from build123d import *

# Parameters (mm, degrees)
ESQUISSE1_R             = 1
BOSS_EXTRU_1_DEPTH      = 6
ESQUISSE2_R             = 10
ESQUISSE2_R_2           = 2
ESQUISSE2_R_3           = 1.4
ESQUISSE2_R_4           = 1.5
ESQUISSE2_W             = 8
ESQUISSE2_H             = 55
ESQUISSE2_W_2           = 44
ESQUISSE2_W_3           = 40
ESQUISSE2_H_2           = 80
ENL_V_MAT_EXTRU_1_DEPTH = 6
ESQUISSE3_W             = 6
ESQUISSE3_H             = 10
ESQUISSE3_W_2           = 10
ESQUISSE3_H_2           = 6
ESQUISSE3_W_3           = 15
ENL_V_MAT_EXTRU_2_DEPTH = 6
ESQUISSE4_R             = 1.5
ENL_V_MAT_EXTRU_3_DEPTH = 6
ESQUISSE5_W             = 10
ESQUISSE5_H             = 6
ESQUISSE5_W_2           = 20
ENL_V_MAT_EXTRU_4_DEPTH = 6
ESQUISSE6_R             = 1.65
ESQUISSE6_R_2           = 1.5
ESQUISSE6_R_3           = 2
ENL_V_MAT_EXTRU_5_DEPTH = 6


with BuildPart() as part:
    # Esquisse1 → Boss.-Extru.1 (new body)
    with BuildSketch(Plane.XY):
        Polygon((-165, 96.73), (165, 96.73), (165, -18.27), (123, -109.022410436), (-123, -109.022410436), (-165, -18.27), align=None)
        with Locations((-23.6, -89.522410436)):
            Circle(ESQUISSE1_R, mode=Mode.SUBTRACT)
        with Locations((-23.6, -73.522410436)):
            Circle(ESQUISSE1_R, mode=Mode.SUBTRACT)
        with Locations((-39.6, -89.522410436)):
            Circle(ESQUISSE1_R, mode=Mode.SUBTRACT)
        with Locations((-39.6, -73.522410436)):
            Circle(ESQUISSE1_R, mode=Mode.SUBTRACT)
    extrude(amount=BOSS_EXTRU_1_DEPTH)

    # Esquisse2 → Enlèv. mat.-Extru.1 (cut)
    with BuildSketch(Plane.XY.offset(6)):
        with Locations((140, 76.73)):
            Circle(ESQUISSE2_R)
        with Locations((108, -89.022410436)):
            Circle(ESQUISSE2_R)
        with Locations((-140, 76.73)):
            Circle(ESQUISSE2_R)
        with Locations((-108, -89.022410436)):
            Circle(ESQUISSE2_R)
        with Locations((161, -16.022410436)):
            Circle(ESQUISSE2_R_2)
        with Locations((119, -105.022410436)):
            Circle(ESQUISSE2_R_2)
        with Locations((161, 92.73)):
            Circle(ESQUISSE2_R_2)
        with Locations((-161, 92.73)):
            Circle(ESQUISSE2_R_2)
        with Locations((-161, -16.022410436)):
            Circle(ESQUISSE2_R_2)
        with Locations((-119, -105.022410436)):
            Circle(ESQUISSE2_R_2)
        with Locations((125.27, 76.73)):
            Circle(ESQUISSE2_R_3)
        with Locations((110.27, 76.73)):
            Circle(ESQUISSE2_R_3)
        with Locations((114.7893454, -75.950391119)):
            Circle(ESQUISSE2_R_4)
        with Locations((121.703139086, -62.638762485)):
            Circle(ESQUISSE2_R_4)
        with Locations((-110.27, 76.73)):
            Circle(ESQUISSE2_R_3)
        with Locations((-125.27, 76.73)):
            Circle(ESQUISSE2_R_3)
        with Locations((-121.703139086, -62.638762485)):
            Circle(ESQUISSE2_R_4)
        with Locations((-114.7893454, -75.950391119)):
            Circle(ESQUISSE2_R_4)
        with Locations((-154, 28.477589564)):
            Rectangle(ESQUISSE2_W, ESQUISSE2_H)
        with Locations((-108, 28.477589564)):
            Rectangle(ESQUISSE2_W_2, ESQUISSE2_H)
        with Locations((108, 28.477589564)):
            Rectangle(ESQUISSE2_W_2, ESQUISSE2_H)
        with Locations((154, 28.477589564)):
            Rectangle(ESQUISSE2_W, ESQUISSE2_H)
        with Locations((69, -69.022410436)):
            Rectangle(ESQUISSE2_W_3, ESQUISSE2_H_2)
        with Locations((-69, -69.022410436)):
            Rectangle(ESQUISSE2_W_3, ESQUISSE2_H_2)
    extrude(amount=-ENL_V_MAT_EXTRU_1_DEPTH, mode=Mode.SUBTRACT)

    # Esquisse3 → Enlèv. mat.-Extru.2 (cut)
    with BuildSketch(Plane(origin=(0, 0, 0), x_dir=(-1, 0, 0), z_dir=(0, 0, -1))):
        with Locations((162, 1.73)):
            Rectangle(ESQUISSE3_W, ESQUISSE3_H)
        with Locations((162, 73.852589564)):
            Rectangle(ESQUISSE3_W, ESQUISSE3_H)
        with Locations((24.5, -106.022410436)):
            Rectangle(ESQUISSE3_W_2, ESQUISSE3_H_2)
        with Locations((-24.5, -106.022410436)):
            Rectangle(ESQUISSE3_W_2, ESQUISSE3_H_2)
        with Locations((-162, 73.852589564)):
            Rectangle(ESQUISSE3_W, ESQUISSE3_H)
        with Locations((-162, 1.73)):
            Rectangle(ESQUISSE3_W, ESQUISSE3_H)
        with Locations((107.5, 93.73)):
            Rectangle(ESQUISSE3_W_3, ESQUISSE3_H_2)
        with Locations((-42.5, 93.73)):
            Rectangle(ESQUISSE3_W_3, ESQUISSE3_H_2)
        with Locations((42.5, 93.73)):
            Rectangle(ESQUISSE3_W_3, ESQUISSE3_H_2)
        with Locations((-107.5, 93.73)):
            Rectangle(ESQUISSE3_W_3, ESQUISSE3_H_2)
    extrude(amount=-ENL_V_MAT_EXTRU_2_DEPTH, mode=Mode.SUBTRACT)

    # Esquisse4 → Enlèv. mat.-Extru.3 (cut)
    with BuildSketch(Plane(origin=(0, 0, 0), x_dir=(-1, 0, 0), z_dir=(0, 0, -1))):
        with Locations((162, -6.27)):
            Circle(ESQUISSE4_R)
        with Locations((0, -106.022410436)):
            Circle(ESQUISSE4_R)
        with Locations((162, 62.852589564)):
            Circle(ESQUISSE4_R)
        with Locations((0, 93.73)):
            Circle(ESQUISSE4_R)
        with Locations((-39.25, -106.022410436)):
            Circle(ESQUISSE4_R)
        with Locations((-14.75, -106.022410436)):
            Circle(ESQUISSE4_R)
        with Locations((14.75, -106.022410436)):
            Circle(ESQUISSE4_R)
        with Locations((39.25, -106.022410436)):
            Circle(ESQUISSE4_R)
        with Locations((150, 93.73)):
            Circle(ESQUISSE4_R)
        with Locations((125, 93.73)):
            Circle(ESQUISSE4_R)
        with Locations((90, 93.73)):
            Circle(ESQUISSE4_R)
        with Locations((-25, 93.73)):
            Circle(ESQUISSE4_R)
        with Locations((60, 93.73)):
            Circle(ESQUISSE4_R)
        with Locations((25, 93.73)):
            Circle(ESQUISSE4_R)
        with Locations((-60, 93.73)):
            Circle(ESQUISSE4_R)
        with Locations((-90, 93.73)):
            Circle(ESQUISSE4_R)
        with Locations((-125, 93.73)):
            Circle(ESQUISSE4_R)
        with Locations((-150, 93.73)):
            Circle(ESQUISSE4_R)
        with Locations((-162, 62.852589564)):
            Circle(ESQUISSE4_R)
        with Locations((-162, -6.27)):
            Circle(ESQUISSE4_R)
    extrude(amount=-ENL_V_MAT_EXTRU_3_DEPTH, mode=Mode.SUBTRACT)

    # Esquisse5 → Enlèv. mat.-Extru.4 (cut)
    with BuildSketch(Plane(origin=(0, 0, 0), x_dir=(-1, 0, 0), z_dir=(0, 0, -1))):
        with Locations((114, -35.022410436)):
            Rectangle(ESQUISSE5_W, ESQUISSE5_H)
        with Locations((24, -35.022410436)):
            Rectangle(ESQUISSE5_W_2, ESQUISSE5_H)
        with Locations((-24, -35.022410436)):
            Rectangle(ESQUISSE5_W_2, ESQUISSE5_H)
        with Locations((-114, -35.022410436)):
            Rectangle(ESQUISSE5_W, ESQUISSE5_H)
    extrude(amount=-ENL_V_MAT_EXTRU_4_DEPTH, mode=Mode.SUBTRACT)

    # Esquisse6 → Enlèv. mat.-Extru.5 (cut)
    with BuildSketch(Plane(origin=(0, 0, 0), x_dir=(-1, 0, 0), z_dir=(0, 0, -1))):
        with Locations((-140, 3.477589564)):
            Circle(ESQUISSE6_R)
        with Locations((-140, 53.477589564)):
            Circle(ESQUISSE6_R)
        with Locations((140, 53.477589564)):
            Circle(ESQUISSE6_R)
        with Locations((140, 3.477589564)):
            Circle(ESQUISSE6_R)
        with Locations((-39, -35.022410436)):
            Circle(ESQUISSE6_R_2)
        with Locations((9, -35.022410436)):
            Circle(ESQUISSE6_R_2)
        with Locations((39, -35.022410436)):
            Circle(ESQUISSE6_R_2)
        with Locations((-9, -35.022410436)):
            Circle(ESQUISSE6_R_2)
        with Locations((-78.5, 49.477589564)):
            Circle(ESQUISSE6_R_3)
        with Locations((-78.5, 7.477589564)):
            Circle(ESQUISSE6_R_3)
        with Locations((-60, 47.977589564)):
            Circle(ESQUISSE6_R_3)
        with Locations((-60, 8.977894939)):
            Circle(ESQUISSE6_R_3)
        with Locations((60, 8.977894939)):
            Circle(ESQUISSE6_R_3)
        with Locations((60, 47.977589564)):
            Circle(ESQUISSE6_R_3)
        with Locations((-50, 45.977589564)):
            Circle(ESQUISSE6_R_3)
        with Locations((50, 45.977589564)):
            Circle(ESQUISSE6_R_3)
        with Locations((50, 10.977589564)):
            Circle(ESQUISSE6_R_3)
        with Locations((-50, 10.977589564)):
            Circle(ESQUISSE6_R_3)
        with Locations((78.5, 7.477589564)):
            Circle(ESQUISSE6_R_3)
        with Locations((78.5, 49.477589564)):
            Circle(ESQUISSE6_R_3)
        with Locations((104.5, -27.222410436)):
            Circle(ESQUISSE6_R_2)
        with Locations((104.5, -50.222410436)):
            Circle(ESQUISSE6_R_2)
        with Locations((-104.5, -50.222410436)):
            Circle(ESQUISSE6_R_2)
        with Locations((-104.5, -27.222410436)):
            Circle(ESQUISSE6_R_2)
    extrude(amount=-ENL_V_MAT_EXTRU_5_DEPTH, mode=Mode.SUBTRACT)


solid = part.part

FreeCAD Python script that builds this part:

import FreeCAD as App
import Part
import Sketcher
Q = App.Units.Quantity

doc = App.newDocument("Part")
body = doc.addObject("PartDesign::Body", "Body")

# Sketch on XY plane
sketch1 = doc.addObject("Sketcher::SketchObject", "Sketch")
body.addObject(sketch1)
sketch1.AttachmentSupport = (doc.XY_Plane, [""])
sketch1.MapMode = "FlatFace"
sketch1.addGeometry(Part.LineSegment(App.Vector(165, 96.73, 0), App.Vector(-165, 96.73, 0)), False)
sketch1.addGeometry(Part.LineSegment(App.Vector(-165, 96.73, 0), App.Vector(-165, -18.27, 0)), False)
sketch1.addGeometry(Part.LineSegment(App.Vector(-165, -18.27, 0), App.Vector(-123, -109.02241, 0)), False)
sketch1.addGeometry(Part.LineSegment(App.Vector(-123, -109.02241, 0), App.Vector(123, -109.02241, 0)), False)
sketch1.addGeometry(Part.LineSegment(App.Vector(123, -109.02241, 0), App.Vector(165, -18.27, 0)), False)
sketch1.addGeometry(Part.LineSegment(App.Vector(165, -18.27, 0), App.Vector(165, 96.73, 0)), False)
sketch1.addGeometry(Part.Circle(App.Vector(-23.6, -89.52241, 0), App.Vector(0, 0, 1), 1), False)
sketch1.addGeometry(Part.Circle(App.Vector(-39.6, -89.52241, 0), App.Vector(0, 0, 1), 1), False)
sketch1.addGeometry(Part.Circle(App.Vector(-23.6, -73.52241, 0), App.Vector(0, 0, 1), 1), False)
sketch1.addGeometry(Part.Circle(App.Vector(-39.6, -73.52241, 0), App.Vector(0, 0, 1), 1), False)
sketch1.addConstraint(Sketcher.Constraint("Coincident", 0, 2, 1, 1))
sketch1.addConstraint(Sketcher.Constraint("Coincident", 1, 2, 2, 1))
sketch1.addConstraint(Sketcher.Constraint("Coincident", 2, 2, 3, 1))
sketch1.addConstraint(Sketcher.Constraint("Coincident", 3, 2, 4, 1))
sketch1.addConstraint(Sketcher.Constraint("Coincident", 4, 2, 5, 1))
sketch1.addConstraint(Sketcher.Constraint("Coincident", 5, 2, 0, 1))
sketch1.addConstraint(Sketcher.Constraint("Horizontal", 0))
sketch1.addConstraint(Sketcher.Constraint("Vertical", 1))
sketch1.addConstraint(Sketcher.Constraint("Horizontal", 3))
sketch1.addConstraint(Sketcher.Constraint("Vertical", 5))
sketch1.addConstraint(Sketcher.Constraint("Equal", 6, 7))
sketch1.addConstraint(Sketcher.Constraint("Equal", 7, 8))
sketch1.addConstraint(Sketcher.Constraint("Equal", 8, 9))
sketch1.addConstraint(Sketcher.Constraint("Symmetric", 1, 2, 4, 2, -2))
sketch1.addConstraint(Sketcher.Constraint("Horizontal", 6, 3, 7, 3))
sketch1.addConstraint(Sketcher.Constraint("Horizontal", 8, 3, 9, 3))
sketch1.addConstraint(Sketcher.Constraint("Vertical", 6, 3, 8, 3))
sketch1.addConstraint(Sketcher.Constraint("Vertical", 7, 3, 9, 3))
sketch1.addConstraint(Sketcher.Constraint("Equal", 2, 4))
sketch1.addConstraint(Sketcher.Constraint("Diameter", 6, Q("2 mm")))
sketch1.addConstraint(Sketcher.Constraint("DistanceX", 0, 2, 0, 1, Q("330 mm")))
sketch1.addConstraint(Sketcher.Constraint("DistanceX", 3, 1, 3, 2, Q("246 mm")))
sketch1.addConstraint(Sketcher.Constraint("DistanceY", 1, 2, 1, 1, Q("115 mm")))
sketch1.addConstraint(Sketcher.Constraint("Distance", 2, Q("100 mm")))
sketch1.addConstraint(Sketcher.Constraint("DistanceX", 7, 3, 6, 3, Q("16 mm")))
sketch1.addConstraint(Sketcher.Constraint("DistanceY", 6, 3, 8, 3, Q("16 mm")))
sketch1.addConstraint(Sketcher.Constraint("DistanceX", 6, 3, -1, 1, Q("23.6 mm")))
sketch1.addConstraint(Sketcher.Constraint("DistanceY", 2, 2, 7, 3, Q("19.5 mm")))
sketch1.addConstraint(Sketcher.Constraint("DistanceY", -1, 1, 0, 2, Q("96.73 mm")))
pad1 = doc.addObject("PartDesign::Pad", "Pad")
body.addObject(pad1)
pad1.Profile = sketch1
pad1.Length = 6

# Sketch on XY plane
sketch2 = doc.addObject("Sketcher::SketchObject", "Sketch001")
body.addObject(sketch2)
sketch2.AttachmentSupport = (doc.XY_Plane, [""])
sketch2.MapMode = "FlatFace"
sketch2.AttachmentOffset = App.Placement(App.Vector(0, 0, 6), App.Rotation())
sketch2.addGeometry(Part.Circle(App.Vector(140, 76.73, 0), App.Vector(0, 0, 1), 10), False)
sketch2.addGeometry(Part.Circle(App.Vector(108, -89.02241, 0), App.Vector(0, 0, 1), 10), False)
sketch2.addGeometry(Part.Circle(App.Vector(-140, 76.73, 0), App.Vector(0, 0, 1), 10), False)
sketch2.addGeometry(Part.Circle(App.Vector(-108, -89.02241, 0), App.Vector(0, 0, 1), 10), False)
sketch2.addGeometry(Part.Circle(App.Vector(161, -16.02241, 0), App.Vector(0, 0, 1), 2), False)
sketch2.addGeometry(Part.Circle(App.Vector(119, -105.02241, 0), App.Vector(0, 0, 1), 2), False)
sketch2.addGeometry(Part.Circle(App.Vector(161, 92.73, 0), App.Vector(0, 0, 1), 2), False)
sketch2.addGeometry(Part.Circle(App.Vector(-161, 92.73, 0), App.Vector(0, 0, 1), 2), False)
sketch2.addGeometry(Part.Circle(App.Vector(-161, -16.02241, 0), App.Vector(0, 0, 1), 2), False)
sketch2.addGeometry(Part.Circle(App.Vector(-119, -105.02241, 0), App.Vector(0, 0, 1), 2), False)
sketch2.addGeometry(Part.Circle(App.Vector(125.27, 76.73, 0), App.Vector(0, 0, 1), 1.4), False)
sketch2.addGeometry(Part.Circle(App.Vector(110.27, 76.73, 0), App.Vector(0, 0, 1), 1.4), False)
sketch2.addGeometry(Part.Circle(App.Vector(114.789345, -75.950391, 0), App.Vector(0, 0, 1), 1.5), False)
sketch2.addGeometry(Part.Circle(App.Vector(121.703139, -62.638762, 0), App.Vector(0, 0, 1), 1.5), False)
sketch2.addGeometry(Part.Circle(App.Vector(-110.27, 76.73, 0), App.Vector(0, 0, 1), 1.4), False)
sketch2.addGeometry(Part.Circle(App.Vector(-125.27, 76.73, 0), App.Vector(0, 0, 1), 1.4), False)
sketch2.addGeometry(Part.Circle(App.Vector(-121.703139, -62.638762, 0), App.Vector(0, 0, 1), 1.5), False)
sketch2.addGeometry(Part.Circle(App.Vector(-114.789345, -75.950391, 0), App.Vector(0, 0, 1), 1.5), False)
sketch2.addGeometry(Part.LineSegment(App.Vector(-158, 55.97759, 0), App.Vector(-158, 0.97759, 0)), False)
sketch2.addGeometry(Part.LineSegment(App.Vector(-158, 0.97759, 0), App.Vector(-150, 0.97759, 0)), False)
sketch2.addGeometry(Part.LineSegment(App.Vector(-150, 0.97759, 0), App.Vector(-150, 55.97759, 0)), False)
sketch2.addGeometry(Part.LineSegment(App.Vector(-150, 55.97759, 0), App.Vector(-158, 55.97759, 0)), False)
sketch2.addGeometry(Part.LineSegment(App.Vector(-130, 55.97759, 0), App.Vector(-130, 0.97759, 0)), False)
sketch2.addGeometry(Part.LineSegment(App.Vector(-130, 0.97759, 0), App.Vector(-86, 0.97759, 0)), False)
sketch2.addGeometry(Part.LineSegment(App.Vector(-86, 0.97759, 0), App.Vector(-86, 55.97759, 0)), False)
sketch2.addGeometry(Part.LineSegment(App.Vector(-86, 55.97759, 0), App.Vector(-130, 55.97759, 0)), False)
sketch2.addGeometry(Part.LineSegment(App.Vector(86, 55.97759, 0), App.Vector(86, 0.97759, 0)), False)
sketch2.addGeometry(Part.LineSegment(App.Vector(86, 0.97759, 0), App.Vector(130, 0.97759, 0)), False)
sketch2.addGeometry(Part.LineSegment(App.Vector(130, 0.97759, 0), App.Vector(130, 55.97759, 0)), False)
sketch2.addGeometry(Part.LineSegment(App.Vector(130, 55.97759, 0), App.Vector(86, 55.97759, 0)), False)
sketch2.addGeometry(Part.LineSegment(App.Vector(150, 55.97759, 0), App.Vector(150, 0.97759, 0)), False)
sketch2.addGeometry(Part.LineSegment(App.Vector(150, 0.97759, 0), App.Vector(158, 0.97759, 0)), False)
sketch2.addGeometry(Part.LineSegment(App.Vector(158, 0.97759, 0), App.Vector(158, 55.97759, 0)), False)
sketch2.addGeometry(Part.LineSegment(App.Vector(158, 55.97759, 0), App.Vector(150, 55.97759, 0)), False)
sketch2.addGeometry(Part.LineSegment(App.Vector(49, -29.02241, 0), App.Vector(49, -109.02241, 0)), False)
sketch2.addGeometry(Part.LineSegment(App.Vector(49, -109.02241, 0), App.Vector(89, -109.02241, 0)), False)
sketch2.addGeometry(Part.LineSegment(App.Vector(89, -109.02241, 0), App.Vector(89, -29.02241, 0)), False)
sketch2.addGeometry(Part.LineSegment(App.Vector(89, -29.02241, 0), App.Vector(49, -29.02241, 0)), False)
sketch2.addGeometry(Part.LineSegment(App.Vector(-89, -29.02241, 0), App.Vector(-89, -109.02241, 0)), False)
sketch2.addGeometry(Part.LineSegment(App.Vector(-89, -109.02241, 0), App.Vector(-49, -109.02241, 0)), False)
sketch2.addGeometry(Part.LineSegment(App.Vector(-49, -109.02241, 0), App.Vector(-49, -29.02241, 0)), False)
sketch2.addGeometry(Part.LineSegment(App.Vector(-49, -29.02241, 0), App.Vector(-89, -29.02241, 0)), False)
sketch2.addConstraint(Sketcher.Constraint("Coincident", 18, 2, 19, 1))
sketch2.addConstraint(Sketcher.Constraint("Coincident", 19, 2, 20, 1))
sketch2.addConstraint(Sketcher.Constraint("Coincident", 20, 2, 21, 1))
sketch2.addConstraint(Sketcher.Constraint("Coincident", 21, 2, 18, 1))
sketch2.addConstraint(Sketcher.Constraint("Coincident", 22, 2, 23, 1))
sketch2.addConstraint(Sketcher.Constraint("Coincident", 23, 2, 24, 1))
sketch2.addConstraint(Sketcher.Constraint("Coincident", 24, 2, 25, 1))
sketch2.addConstraint(Sketcher.Constraint("Coincident", 25, 2, 22, 1))
sketch2.addConstraint(Sketcher.Constraint("Coincident", 26, 2, 27, 1))
sketch2.addConstraint(Sketcher.Constraint("Coincident", 27, 2, 28, 1))
sketch2.addConstraint(Sketcher.Constraint("Coincident", 28, 2, 29, 1))
sketch2.addConstraint(Sketcher.Constraint("Coincident", 29, 2, 26, 1))
sketch2.addConstraint(Sketcher.Constraint("Coincident", 30, 2, 31, 1))
sketch2.addConstraint(Sketcher.Constraint("Coincident", 31, 2, 32, 1))
sketch2.addConstraint(Sketcher.Constraint("Coincident", 32, 2, 33, 1))
sketch2.addConstraint(Sketcher.Constraint("Coincident", 33, 2, 30, 1))
sketch2.addConstraint(Sketcher.Constraint("Coincident", 34, 2, 35, 1))
sketch2.addConstraint(Sketcher.Constraint("Coincident", 35, 2, 36, 1))
sketch2.addConstraint(Sketcher.Constraint("Coincident", 36, 2, 37, 1))
sketch2.addConstraint(Sketcher.Constraint("Coincident", 37, 2, 34, 1))
sketch2.addConstraint(Sketcher.Constraint("Coincident", 38, 2, 39, 1))
sketch2.addConstraint(Sketcher.Constraint("Coincident", 39, 2, 40, 1))
sketch2.addConstraint(Sketcher.Constraint("Coincident", 40, 2, 41, 1))
sketch2.addConstraint(Sketcher.Constraint("Coincident", 41, 2, 38, 1))
sketch2.addConstraint(Sketcher.Constraint("Vertical", 18))
sketch2.addConstraint(Sketcher.Constraint("Horizontal", 19))
sketch2.addConstraint(Sketcher.Constraint("Vertical", 20))
sketch2.addConstraint(Sketcher.Constraint("Horizontal", 21))
sketch2.addConstraint(Sketcher.Constraint("Vertical", 22))
sketch2.addConstraint(Sketcher.Constraint("Horizontal", 23))
sketch2.addConstraint(Sketcher.Constraint("Vertical", 24))
sketch2.addConstraint(Sketcher.Constraint("Horizontal", 25))
sketch2.addConstraint(Sketcher.Constraint("Vertical", 26))
sketch2.addConstraint(Sketcher.Constraint("Horizontal", 27))
sketch2.addConstraint(Sketcher.Constraint("Vertical", 28))
sketch2.addConstraint(Sketcher.Constraint("Horizontal", 29))
sketch2.addConstraint(Sketcher.Constraint("Vertical", 30))
sketch2.addConstraint(Sketcher.Constraint("Horizontal", 31))
sketch2.addConstraint(Sketcher.Constraint("Vertical", 32))
sketch2.addConstraint(Sketcher.Constraint("Horizontal", 33))
sketch2.addConstraint(Sketcher.Constraint("Vertical", 34))
sketch2.addConstraint(Sketcher.Constraint("Horizontal", 35))
sketch2.addConstraint(Sketcher.Constraint("Vertical", 36))
sketch2.addConstraint(Sketcher.Constraint("Horizontal", 37))
sketch2.addConstraint(Sketcher.Constraint("Vertical", 38))
sketch2.addConstraint(Sketcher.Constraint("Horizontal", 39))
sketch2.addConstraint(Sketcher.Constraint("Vertical", 40))
sketch2.addConstraint(Sketcher.Constraint("Horizontal", 41))
sketch2.addConstraint(Sketcher.Constraint("Equal", 0, 1))
sketch2.addConstraint(Sketcher.Constraint("Equal", 1, 2))
sketch2.addConstraint(Sketcher.Constraint("Equal", 2, 3))
sketch2.addConstraint(Sketcher.Constraint("Equal", 4, 5))
sketch2.addConstraint(Sketcher.Constraint("Equal", 5, 6))
sketch2.addConstraint(Sketcher.Constraint("Equal", 6, 7))
sketch2.addConstraint(Sketcher.Constraint("Equal", 7, 8))
sketch2.addConstraint(Sketcher.Constraint("Equal", 8, 9))
sketch2.addConstraint(Sketcher.Constraint("Equal", 10, 11))
sketch2.addConstraint(Sketcher.Constraint("Equal", 12, 13))
sketch2.addConstraint(Sketcher.Constraint("Equal", 11, 14))
sketch2.addConstraint(Sketcher.Constraint("Equal", 14, 15))
sketch2.addConstraint(Sketcher.Constraint("Equal", 13, 16))
sketch2.addConstraint(Sketcher.Constraint("Equal", 16, 17))
sketch2.addConstraint(Sketcher.Constraint("Symmetric", 0, 3, 2, 3, -2))
sketch2.addConstraint(Sketcher.Constraint("Symmetric", 1, 3, 3, 3, -2))
sketch2.addConstraint(Sketcher.Constraint("Symmetric", 6, 3, 7, 3, -2))
sketch2.addConstraint(Sketcher.Constraint("Symmetric", 4, 3, 8, 3, -2))
sketch2.addConstraint(Sketcher.Constraint("Symmetric", 5, 3, 9, 3, -2))
sketch2.addConstraint(Sketcher.Constraint("Symmetric", 11, 3, 14, 3, -2))
sketch2.addConstraint(Sketcher.Constraint("Symmetric", 10, 3, 15, 3, -2))
sketch2.addConstraint(Sketcher.Constraint("Symmetric", 13, 3, 16, 3, -2))
sketch2.addConstraint(Sketcher.Constraint("Symmetric", 12, 3, 17, 3, -2))
sketch2.addConstraint(Sketcher.Constraint("Symmetric", 23, 2, 26, 2, -2))
sketch2.addConstraint(Sketcher.Constraint("Symmetric", 25, 2, 28, 2, -2))
sketch2.addConstraint(Sketcher.Constraint("Symmetric", 19, 2, 30, 2, -2))
sketch2.addConstraint(Sketcher.Constraint("Symmetric", 21, 2, 32, 2, -2))
sketch2.addConstraint(Sketcher.Constraint("Symmetric", 35, 2, 38, 2, -2))
sketch2.addConstraint(Sketcher.Constraint("Symmetric", 37, 2, 40, 2, -2))
sketch2.addConstraint(Sketcher.Constraint("Horizontal", 2, 3, 10, 3))
sketch2.addConstraint(Sketcher.Constraint("Horizontal", 10, 3, 11, 3))
sketch2.addConstraint(Sketcher.Constraint("Horizontal", 19, 2, 22, 2))
sketch2.addConstraint(Sketcher.Constraint("Horizontal", 21, 2, 24, 2))
sketch2.addConstraint(Sketcher.Constraint("Vertical", 4, 3, 6, 3))
sketch2.addConstraint(Sketcher.Constraint("Diameter", 0, Q("20 mm")))
sketch2.addConstraint(Sketcher.Constraint("Diameter", 4, Q("4 mm")))
sketch2.addConstraint(Sketcher.Constraint("Diameter", 12, Q("3 mm")))
sketch2.addConstraint(Sketcher.Constraint("Diameter", 10, Q("2.8 mm")))
sketch2.addConstraint(Sketcher.Constraint("DistanceX", 19, 1, 19, 2, Q("8 mm")))
sketch2.addConstraint(Sketcher.Constraint("DistanceX", 23, 1, 23, 2, Q("44 mm")))
sketch2.addConstraint(Sketcher.Constraint("DistanceX", 35, 1, 35, 2, Q("40 mm")))
sketch2.addConstraint(Sketcher.Constraint("DistanceY", 18, 2, 18, 1, Q("55 mm")))
sketch2.addConstraint(Sketcher.Constraint("DistanceY", 34, 2, 34, 1, Q("80 mm")))
sketch2.addConstraint(Sketcher.Constraint("DistanceX", -1, 1, 0, 3, Q("140 mm")))
sketch2.addConstraint(Sketcher.Constraint("DistanceX", -1, 1, 1, 3, Q("108 mm")))
sketch2.addConstraint(Sketcher.Constraint("DistanceX", -1, 1, 4, 3, Q("161 mm")))
sketch2.addConstraint(Sketcher.Constraint("DistanceX", -1, 1, 5, 3, Q("119 mm")))
sketch2.addConstraint(Sketcher.Constraint("DistanceX", 18, 2, -1, 1, Q("158 mm")))
sketch2.addConstraint(Sketcher.Constraint("DistanceX", 22, 2, -1, 1, Q("130 mm")))
sketch2.addConstraint(Sketcher.Constraint("DistanceX", -1, 1, 34, 2, Q("49 mm")))
sketch2.addConstraint(Sketcher.Constraint("DistanceY", 1, 3, 4, 3, Q("73 mm")))
sketch2.addConstraint(Sketcher.Constraint("DistanceY", 5, 3, 1, 3, Q("16 mm")))
sketch2.addConstraint(Sketcher.Constraint("DistanceY", 0, 3, 6, 3, Q("16 mm")))
sketch2.addConstraint(Sketcher.Constraint("DistanceX", 11, 3, 10, 3, Q("15 mm")))
sketch2.addConstraint(Sketcher.Constraint("DistanceY", 8, 3, 18, 2, Q("17 mm")))
sketch2.addConstraint(Sketcher.Constraint("DistanceY", 34, 2, 1, 3, Q("20 mm")))
sketch2.addConstraint(Sketcher.Constraint("DistanceY", -1, 1, 0, 3, Q("76.73 mm")))
sketch2.addConstraint(Sketcher.Constraint("DistanceX", -1, 1, 10, 3, Q("125.27 mm")))
sketch2.addConstraint(Sketcher.Constraint("DistanceY", 1, 3, -1, 1, Q("89.02241 mm")))
sketch2.addConstraint(Sketcher.Constraint("DistanceY", 12, 3, -1, 1, Q("75.950391 mm")))
sketch2.addConstraint(Sketcher.Constraint("DistanceX", -1, 1, 13, 3, Q("121.703139 mm")))
sketch2.addConstraint(Sketcher.Constraint("DistanceY", 12, 3, 13, 3, Q("13.311629 mm")))
sketch2.addConstraint(Sketcher.Constraint("DistanceX", -1, 1, 12, 3, Q("114.789345 mm")))
pocket1 = doc.addObject("PartDesign::Pocket", "Pocket")
body.addObject(pocket1)
pocket1.Profile = sketch2
pocket1.Length = 6

# Sketch on XY plane
sketch3 = doc.addObject("Sketcher::SketchObject", "Sketch002")
body.addObject(sketch3)
sketch3.AttachmentSupport = (doc.XY_Plane, [""])
sketch3.MapMode = "FlatFace"
sketch3.addGeometry(Part.LineSegment(App.Vector(-159, 6.73, 0), App.Vector(-159, -3.27, 0)), False)
sketch3.addGeometry(Part.LineSegment(App.Vector(-159, -3.27, 0), App.Vector(-165, -3.27, 0)), False)
sketch3.addGeometry(Part.LineSegment(App.Vector(-165, -3.27, 0), App.Vector(-165, 6.73, 0)), False)
sketch3.addGeometry(Part.LineSegment(App.Vector(-165, 6.73, 0), App.Vector(-159, 6.73, 0)), False)
sketch3.addGeometry(Part.LineSegment(App.Vector(-159, 78.85259, 0), App.Vector(-159, 68.85259, 0)), False)
sketch3.addGeometry(Part.LineSegment(App.Vector(-159, 68.85259, 0), App.Vector(-165, 68.85259, 0)), False)
sketch3.addGeometry(Part.LineSegment(App.Vector(-165, 68.85259, 0), App.Vector(-165, 78.85259, 0)), False)
sketch3.addGeometry(Part.LineSegment(App.Vector(-165, 78.85259, 0), App.Vector(-159, 78.85259, 0)), False)
sketch3.addGeometry(Part.LineSegment(App.Vector(-19.5, -103.02241, 0), App.Vector(-19.5, -109.02241, 0)), False)
sketch3.addGeometry(Part.LineSegment(App.Vector(-19.5, -109.02241, 0), App.Vector(-29.5, -109.02241, 0)), False)
sketch3.addGeometry(Part.LineSegment(App.Vector(-29.5, -109.02241, 0), App.Vector(-29.5, -103.02241, 0)), False)
sketch3.addGeometry(Part.LineSegment(App.Vector(-29.5, -103.02241, 0), App.Vector(-19.5, -103.02241, 0)), False)
sketch3.addGeometry(Part.LineSegment(App.Vector(29.5, -103.02241, 0), App.Vector(29.5, -109.02241, 0)), False)
sketch3.addGeometry(Part.LineSegment(App.Vector(29.5, -109.02241, 0), App.Vector(19.5, -109.02241, 0)), False)
sketch3.addGeometry(Part.LineSegment(App.Vector(19.5, -109.02241, 0), App.Vector(19.5, -103.02241, 0)), False)
sketch3.addGeometry(Part.LineSegment(App.Vector(19.5, -103.02241, 0), App.Vector(29.5, -103.02241, 0)), False)
sketch3.addGeometry(Part.LineSegment(App.Vector(165, 78.85259, 0), App.Vector(165, 68.85259, 0)), False)
sketch3.addGeometry(Part.LineSegment(App.Vector(165, 68.85259, 0), App.Vector(159, 68.85259, 0)), False)
sketch3.addGeometry(Part.LineSegment(App.Vector(159, 68.85259, 0), App.Vector(159, 78.85259, 0)), False)
sketch3.addGeometry(Part.LineSegment(App.Vector(159, 78.85259, 0), App.Vector(165, 78.85259, 0)), False)
sketch3.addGeometry(Part.LineSegment(App.Vector(165, 6.73, 0), App.Vector(165, -3.27, 0)), False)
sketch3.addGeometry(Part.LineSegment(App.Vector(165, -3.27, 0), App.Vector(159, -3.27, 0)), False)
sketch3.addGeometry(Part.LineSegment(App.Vector(159, -3.27, 0), App.Vector(159, 6.73, 0)), False)
sketch3.addGeometry(Part.LineSegment(App.Vector(159, 6.73, 0), App.Vector(165, 6.73, 0)), False)
sketch3.addGeometry(Part.LineSegment(App.Vector(-100, 96.73, 0), App.Vector(-100, 90.73, 0)), False)
sketch3.addGeometry(Part.LineSegment(App.Vector(-100, 90.73, 0), App.Vector(-115, 90.73, 0)), False)
sketch3.addGeometry(Part.LineSegment(App.Vector(-115, 90.73, 0), App.Vector(-115, 96.73, 0)), False)
sketch3.addGeometry(Part.LineSegment(App.Vector(-115, 96.73, 0), App.Vector(-100, 96.73, 0)), False)
sketch3.addGeometry(Part.LineSegment(App.Vector(50, 96.73, 0), App.Vector(50, 90.73, 0)), False)
sketch3.addGeometry(Part.LineSegment(App.Vector(50, 90.73, 0), App.Vector(35, 90.73, 0)), False)
sketch3.addGeometry(Part.LineSegment(App.Vector(35, 90.73, 0), App.Vector(35, 96.73, 0)), False)
sketch3.addGeometry(Part.LineSegment(App.Vector(35, 96.73, 0), App.Vector(50, 96.73, 0)), False)
sketch3.addGeometry(Part.LineSegment(App.Vector(-35, 96.73, 0), App.Vector(-35, 90.73, 0)), False)
sketch3.addGeometry(Part.LineSegment(App.Vector(-35, 90.73, 0), App.Vector(-50, 90.73, 0)), False)
sketch3.addGeometry(Part.LineSegment(App.Vector(-50, 90.73, 0), App.Vector(-50, 96.73, 0)), False)
sketch3.addGeometry(Part.LineSegment(App.Vector(-50, 96.73, 0), App.Vector(-35, 96.73, 0)), False)
sketch3.addGeometry(Part.LineSegment(App.Vector(115, 96.73, 0), App.Vector(115, 90.73, 0)), False)
sketch3.addGeometry(Part.LineSegment(App.Vector(115, 90.73, 0), App.Vector(100, 90.73, 0)), False)
sketch3.addGeometry(Part.LineSegment(App.Vector(100, 90.73, 0), App.Vector(100, 96.73, 0)), False)
sketch3.addGeometry(Part.LineSegment(App.Vector(100, 96.73, 0), App.Vector(115, 96.73, 0)), False)
sketch3.addConstraint(Sketcher.Constraint("Coincident", 0, 2, 1, 1))
sketch3.addConstraint(Sketcher.Constraint("Coincident", 1, 2, 2, 1))
sketch3.addConstraint(Sketcher.Constraint("Coincident", 2, 2, 3, 1))
sketch3.addConstraint(Sketcher.Constraint("Coincident", 3, 2, 0, 1))
sketch3.addConstraint(Sketcher.Constraint("Coincident", 4, 2, 5, 1))
sketch3.addConstraint(Sketcher.Constraint("Coincident", 5, 2, 6, 1))
sketch3.addConstraint(Sketcher.Constraint("Coincident", 6, 2, 7, 1))
sketch3.addConstraint(Sketcher.Constraint("Coincident", 7, 2, 4, 1))
sketch3.addConstraint(Sketcher.Constraint("Coincident", 8, 2, 9, 1))
sketch3.addConstraint(Sketcher.Constraint("Coincident", 9, 2, 10, 1))
sketch3.addConstraint(Sketcher.Constraint("Coincident", 10, 2, 11, 1))
sketch3.addConstraint(Sketcher.Constraint("Coincident", 11, 2, 8, 1))
sketch3.addConstraint(Sketcher.Constraint("Coincident", 12, 2, 13, 1))
sketch3.addConstraint(Sketcher.Constraint("Coincident", 13, 2, 14, 1))
sketch3.addConstraint(Sketcher.Constraint("Coincident", 14, 2, 15, 1))
sketch3.addConstraint(Sketcher.Constraint("Coincident", 15, 2, 12, 1))
sketch3.addConstraint(Sketcher.Constraint("Coincident", 16, 2, 17, 1))
sketch3.addConstraint(Sketcher.Constraint("Coincident", 17, 2, 18, 1))
sketch3.addConstraint(Sketcher.Constraint("Coincident", 18, 2, 19, 1))
sketch3.addConstraint(Sketcher.Constraint("Coincident", 19, 2, 16, 1))
sketch3.addConstraint(Sketcher.Constraint("Coincident", 20, 2, 21, 1))
sketch3.addConstraint(Sketcher.Constraint("Coincident", 21, 2, 22, 1))
sketch3.addConstraint(Sketcher.Constraint("Coincident", 22, 2, 23, 1))
sketch3.addConstraint(Sketcher.Constraint("Coincident", 23, 2, 20, 1))
sketch3.addConstraint(Sketcher.Constraint("Coincident", 24, 2, 25, 1))
sketch3.addConstraint(Sketcher.Constraint("Coincident", 25, 2, 26, 1))
sketch3.addConstraint(Sketcher.Constraint("Coincident", 26, 2, 27, 1))
sketch3.addConstraint(Sketcher.Constraint("Coincident", 27, 2, 24, 1))
sketch3.addConstraint(Sketcher.Constraint("Coincident", 28, 2, 29, 1))
sketch3.addConstraint(Sketcher.Constraint("Coincident", 29, 2, 30, 1))
sketch3.addConstraint(Sketcher.Constraint("Coincident", 30, 2, 31, 1))
sketch3.addConstraint(Sketcher.Constraint("Coincident", 31, 2, 28, 1))
sketch3.addConstraint(Sketcher.Constraint("Coincident", 32, 2, 33, 1))
sketch3.addConstraint(Sketcher.Constraint("Coincident", 33, 2, 34, 1))
sketch3.addConstraint(Sketcher.Constraint("Coincident", 34, 2, 35, 1))
sketch3.addConstraint(Sketcher.Constraint("Coincident", 35, 2, 32, 1))
sketch3.addConstraint(Sketcher.Constraint("Coincident", 36, 2, 37, 1))
sketch3.addConstraint(Sketcher.Constraint("Coincident", 37, 2, 38, 1))
sketch3.addConstraint(Sketcher.Constraint("Coincident", 38, 2, 39, 1))
sketch3.addConstraint(Sketcher.Constraint("Coincident", 39, 2, 36, 1))
sketch3.addConstraint(Sketcher.Constraint("Vertical", 0))
sketch3.addConstraint(Sketcher.Constraint("Horizontal", 1))
sketch3.addConstraint(Sketcher.Constraint("Vertical", 2))
sketch3.addConstraint(Sketcher.Constraint("Horizontal", 3))
sketch3.addConstraint(Sketcher.Constraint("Vertical", 4))
sketch3.addConstraint(Sketcher.Constraint("Horizontal", 5))
sketch3.addConstraint(Sketcher.Constraint("Vertical", 6))
sketch3.addConstraint(Sketcher.Constraint("Horizontal", 7))
sketch3.addConstraint(Sketcher.Constraint("Vertical", 8))
sketch3.addConstraint(Sketcher.Constraint("Horizontal", 9))
sketch3.addConstraint(Sketcher.Constraint("Vertical", 10))
sketch3.addConstraint(Sketcher.Constraint("Horizontal", 11))
sketch3.addConstraint(Sketcher.Constraint("Vertical", 12))
sketch3.addConstraint(Sketcher.Constraint("Horizontal", 13))
sketch3.addConstraint(Sketcher.Constraint("Vertical", 14))
sketch3.addConstraint(Sketcher.Constraint("Horizontal", 15))
sketch3.addConstraint(Sketcher.Constraint("Vertical", 16))
sketch3.addConstraint(Sketcher.Constraint("Horizontal", 17))
sketch3.addConstraint(Sketcher.Constraint("Vertical", 18))
sketch3.addConstraint(Sketcher.Constraint("Horizontal", 19))
sketch3.addConstraint(Sketcher.Constraint("Vertical", 20))
sketch3.addConstraint(Sketcher.Constraint("Horizontal", 21))
sketch3.addConstraint(Sketcher.Constraint("Vertical", 22))
sketch3.addConstraint(Sketcher.Constraint("Horizontal", 23))
sketch3.addConstraint(Sketcher.Constraint("Vertical", 24))
sketch3.addConstraint(Sketcher.Constraint("Horizontal", 25))
sketch3.addConstraint(Sketcher.Constraint("Vertical", 26))
sketch3.addConstraint(Sketcher.Constraint("Horizontal", 27))
sketch3.addConstraint(Sketcher.Constraint("Vertical", 28))
sketch3.addConstraint(Sketcher.Constraint("Horizontal", 29))
sketch3.addConstraint(Sketcher.Constraint("Vertical", 30))
sketch3.addConstraint(Sketcher.Constraint("Horizontal", 31))
sketch3.addConstraint(Sketcher.Constraint("Vertical", 32))
sketch3.addConstraint(Sketcher.Constraint("Horizontal", 33))
sketch3.addConstraint(Sketcher.Constraint("Vertical", 34))
sketch3.addConstraint(Sketcher.Constraint("Horizontal", 35))
sketch3.addConstraint(Sketcher.Constraint("Vertical", 36))
sketch3.addConstraint(Sketcher.Constraint("Horizontal", 37))
sketch3.addConstraint(Sketcher.Constraint("Vertical", 38))
sketch3.addConstraint(Sketcher.Constraint("Horizontal", 39))
sketch3.addConstraint(Sketcher.Constraint("Symmetric", 9, 2, 12, 2, -2))
sketch3.addConstraint(Sketcher.Constraint("Symmetric", 11, 2, 14, 2, -2))
sketch3.addConstraint(Sketcher.Constraint("Symmetric", 5, 2, 16, 2, -2))
sketch3.addConstraint(Sketcher.Constraint("Symmetric", 7, 2, 18, 2, -2))
sketch3.addConstraint(Sketcher.Constraint("Symmetric", 1, 2, 20, 2, -2))
sketch3.addConstraint(Sketcher.Constraint("Symmetric", 3, 2, 22, 2, -2))
sketch3.addConstraint(Sketcher.Constraint("Symmetric", 29, 2, 32, 2, -2))
sketch3.addConstraint(Sketcher.Constraint("Symmetric", 31, 2, 34, 2, -2))
sketch3.addConstraint(Sketcher.Constraint("Symmetric", 25, 2, 36, 2, -2))
sketch3.addConstraint(Sketcher.Constraint("Symmetric", 27, 2, 38, 2, -2))
sketch3.addConstraint(Sketcher.Constraint("Horizontal", 25, 2, 28, 2))
sketch3.addConstraint(Sketcher.Constraint("Horizontal", 27, 2, 30, 2))
sketch3.addConstraint(Sketcher.Constraint("Vertical", 3, 2, 4, 2))
sketch3.addConstraint(Sketcher.Constraint("Vertical", 2, 2, 5, 2))
sketch3.addConstraint(Sketcher.Constraint("Equal", 27, 29))
sketch3.addConstraint(Sketcher.Constraint("Equal", 15, 0))
sketch3.addConstraint(Sketcher.Constraint("Equal", 2, 4))
sketch3.addConstraint(Sketcher.Constraint("Equal", 23, 8))
sketch3.addConstraint(Sketcher.Constraint("Equal", 14, 24))
sketch3.addConstraint(Sketcher.Constraint("DistanceX", 1, 2, 1, 1, Q("6 mm")))
sketch3.addConstraint(Sketcher.Constraint("DistanceX", 9, 2, 9, 1, Q("10 mm")))
sketch3.addConstraint(Sketcher.Constraint("DistanceX", 25, 2, 25, 1, Q("15 mm")))
sketch3.addConstraint(Sketcher.Constraint("DistanceX", 0, 2, -1, 1, Q("159 mm")))
sketch3.addConstraint(Sketcher.Constraint("DistanceX", 24, 2, -1, 1, Q("100 mm")))
sketch3.addConstraint(Sketcher.Constraint("DistanceX", -1, 1, 28, 2, Q("50 mm")))
sketch3.addConstraint(Sketcher.Constraint("DistanceX", 8, 2, 12, 2, Q("49 mm")))
sketch3.addConstraint(Sketcher.Constraint("DistanceY", 3, 2, 24, 2, Q("84 mm")))
sketch3.addConstraint(Sketcher.Constraint("DistanceY", 0, 2, -1, 1, Q("3.27 mm")))
sketch3.addConstraint(Sketcher.Constraint("DistanceY", 8, 2, 4, 2, Q("177.875 mm")))
sketch3.addConstraint(Sketcher.Constraint("DistanceY", -1, 1, 4, 2, Q("68.85259 mm")))
pocket2 = doc.addObject("PartDesign::Pocket", "Pocket001")
body.addObject(pocket2)
pocket2.Profile = sketch3
pocket2.Length = 6
pocket2.Reversed = True

# Sketch on XY plane
sketch4 = doc.addObject("Sketcher::SketchObject", "Sketch003")
body.addObject(sketch4)
sketch4.AttachmentSupport = (doc.XY_Plane, [""])
sketch4.MapMode = "FlatFace"
sketch4.addGeometry(Part.Circle(App.Vector(-162, -6.27, 0), App.Vector(0, 0, 1), 1.5), False)
sketch4.addGeometry(Part.Circle(App.Vector(0, -106.02241, 0), App.Vector(0, 0, 1), 1.5), False)
sketch4.addGeometry(Part.Circle(App.Vector(-162, 62.85259, 0), App.Vector(0, 0, 1), 1.5), False)
sketch4.addGeometry(Part.Circle(App.Vector(0, 93.73, 0), App.Vector(0, 0, 1), 1.5), False)
sketch4.addGeometry(Part.Circle(App.Vector(39.25, -106.02241, 0), App.Vector(0, 0, 1), 1.5), False)
sketch4.addGeometry(Part.Circle(App.Vector(14.75, -106.02241, 0), App.Vector(0, 0, 1), 1.5), False)
sketch4.addGeometry(Part.Circle(App.Vector(-14.75, -106.02241, 0), App.Vector(0, 0, 1), 1.5), False)
sketch4.addGeometry(Part.Circle(App.Vector(-39.25, -106.02241, 0), App.Vector(0, 0, 1), 1.5), False)
sketch4.addGeometry(Part.Circle(App.Vector(-150, 93.73, 0), App.Vector(0, 0, 1), 1.5), False)
sketch4.addGeometry(Part.Circle(App.Vector(-125, 93.73, 0), App.Vector(0, 0, 1), 1.5), False)
sketch4.addGeometry(Part.Circle(App.Vector(-90, 93.73, 0), App.Vector(0, 0, 1), 1.5), False)
sketch4.addGeometry(Part.Circle(App.Vector(25, 93.73, 0), App.Vector(0, 0, 1), 1.5), False)
sketch4.addGeometry(Part.Circle(App.Vector(-60, 93.73, 0), App.Vector(0, 0, 1), 1.5), False)
sketch4.addGeometry(Part.Circle(App.Vector(-25, 93.73, 0), App.Vector(0, 0, 1), 1.5), False)
sketch4.addGeometry(Part.Circle(App.Vector(60, 93.73, 0), App.Vector(0, 0, 1), 1.5), False)
sketch4.addGeometry(Part.Circle(App.Vector(90, 93.73, 0), App.Vector(0, 0, 1), 1.5), False)
sketch4.addGeometry(Part.Circle(App.Vector(125, 93.73, 0), App.Vector(0, 0, 1), 1.5), False)
sketch4.addGeometry(Part.Circle(App.Vector(150, 93.73, 0), App.Vector(0, 0, 1), 1.5), False)
sketch4.addGeometry(Part.Circle(App.Vector(162, 62.85259, 0), App.Vector(0, 0, 1), 1.5), False)
sketch4.addGeometry(Part.Circle(App.Vector(162, -6.27, 0), App.Vector(0, 0, 1), 1.5), False)
sketch4.addConstraint(Sketcher.Constraint("Equal", 0, 1))
sketch4.addConstraint(Sketcher.Constraint("Equal", 1, 2))
sketch4.addConstraint(Sketcher.Constraint("Equal", 2, 3))
sketch4.addConstraint(Sketcher.Constraint("Equal", 3, 4))
sketch4.addConstraint(Sketcher.Constraint("Equal", 4, 5))
sketch4.addConstraint(Sketcher.Constraint("Equal", 5, 6))
sketch4.addConstraint(Sketcher.Constraint("Equal", 6, 7))
sketch4.addConstraint(Sketcher.Constraint("Equal", 7, 8))
sketch4.addConstraint(Sketcher.Constraint("Equal", 8, 9))
sketch4.addConstraint(Sketcher.Constraint("Equal", 9, 10))
sketch4.addConstraint(Sketcher.Constraint("Equal", 10, 11))
sketch4.addConstraint(Sketcher.Constraint("Equal", 11, 12))
sketch4.addConstraint(Sketcher.Constraint("Equal", 12, 13))
sketch4.addConstraint(Sketcher.Constraint("Equal", 13, 14))
sketch4.addConstraint(Sketcher.Constraint("Equal", 14, 15))
sketch4.addConstraint(Sketcher.Constraint("Equal", 15, 16))
sketch4.addConstraint(Sketcher.Constraint("Equal", 16, 17))
sketch4.addConstraint(Sketcher.Constraint("Equal", 17, 18))
sketch4.addConstraint(Sketcher.Constraint("Equal", 18, 19))
sketch4.addConstraint(Sketcher.Constraint("Symmetric", 5, 3, 6, 3, -2))
sketch4.addConstraint(Sketcher.Constraint("Symmetric", 4, 3, 7, 3, -2))
sketch4.addConstraint(Sketcher.Constraint("Symmetric", 11, 3, 13, 3, -2))
sketch4.addConstraint(Sketcher.Constraint("Symmetric", 12, 3, 14, 3, -2))
sketch4.addConstraint(Sketcher.Constraint("Symmetric", 10, 3, 15, 3, -2))
sketch4.addConstraint(Sketcher.Constraint("Symmetric", 9, 3, 16, 3, -2))
sketch4.addConstraint(Sketcher.Constraint("Symmetric", 8, 3, 17, 3, -2))
sketch4.addConstraint(Sketcher.Constraint("Symmetric", 2, 3, 18, 3, -2))
sketch4.addConstraint(Sketcher.Constraint("Symmetric", 0, 3, 19, 3, -2))
sketch4.addConstraint(Sketcher.Constraint("PointOnObject", 1, 3, -2))
sketch4.addConstraint(Sketcher.Constraint("PointOnObject", 3, 3, -2))
sketch4.addConstraint(Sketcher.Constraint("Horizontal", 1, 3, 4, 3))
sketch4.addConstraint(Sketcher.Constraint("Horizontal", 4, 3, 5, 3))
sketch4.addConstraint(Sketcher.Constraint("Horizontal", 3, 3, 8, 3))
sketch4.addConstraint(Sketcher.Constraint("Horizontal", 8, 3, 9, 3))
sketch4.addConstraint(Sketcher.Constraint("Horizontal", 9, 3, 10, 3))
sketch4.addConstraint(Sketcher.Constraint("Horizontal", 10, 3, 11, 3))
sketch4.addConstraint(Sketcher.Constraint("Horizontal", 11, 3, 12, 3))
sketch4.addConstraint(Sketcher.Constraint("Vertical", 0, 3, 2, 3))
sketch4.addConstraint(Sketcher.Constraint("Diameter", 0, Q("3 mm")))
sketch4.addConstraint(Sketcher.Constraint("DistanceX", 0, 3, -1, 1, Q("162 mm")))
sketch4.addConstraint(Sketcher.Constraint("DistanceX", 8, 3, -1, 1, Q("150 mm")))
sketch4.addConstraint(Sketcher.Constraint("DistanceX", 9, 3, -1, 1, Q("125 mm")))
sketch4.addConstraint(Sketcher.Constraint("DistanceX", 10, 3, -1, 1, Q("90 mm")))
sketch4.addConstraint(Sketcher.Constraint("DistanceX", -1, 1, 11, 3, Q("25 mm")))
sketch4.addConstraint(Sketcher.Constraint("DistanceX", 12, 3, -1, 1, Q("60 mm")))
sketch4.addConstraint(Sketcher.Constraint("DistanceY", 0, 3, 3, 3, Q("100 mm")))
sketch4.addConstraint(Sketcher.Constraint("DistanceX", 6, 3, 4, 3, Q("54 mm")))
sketch4.addConstraint(Sketcher.Constraint("DistanceX", 5, 3, 4, 3, Q("24.5 mm")))
sketch4.addConstraint(Sketcher.Constraint("DistanceY", 0, 3, -1, 1, Q("6.27 mm")))
sketch4.addConstraint(Sketcher.Constraint("DistanceY", 1, 3, 2, 3, Q("168.875 mm")))
sketch4.addConstraint(Sketcher.Constraint("DistanceY", 1, 3, -1, 1, Q("106.02241 mm")))
pocket3 = doc.addObject("PartDesign::Pocket", "Pocket002")
body.addObject(pocket3)
pocket3.Profile = sketch4
pocket3.Length = 6
pocket3.Reversed = True

# Sketch on XY plane
sketch5 = doc.addObject("Sketcher::SketchObject", "Sketch004")
body.addObject(sketch5)
sketch5.AttachmentSupport = (doc.XY_Plane, [""])
sketch5.MapMode = "FlatFace"
sketch5.addGeometry(Part.LineSegment(App.Vector(-109, -32.02241, 0), App.Vector(-109, -38.02241, 0)), False)
sketch5.addGeometry(Part.LineSegment(App.Vector(-109, -38.02241, 0), App.Vector(-119, -38.02241, 0)), False)
sketch5.addGeometry(Part.LineSegment(App.Vector(-119, -38.02241, 0), App.Vector(-119, -32.02241, 0)), False)
sketch5.addGeometry(Part.LineSegment(App.Vector(-119, -32.02241, 0), App.Vector(-109, -32.02241, 0)), False)
sketch5.addGeometry(Part.LineSegment(App.Vector(-14, -32.02241, 0), App.Vector(-14, -38.02241, 0)), False)
sketch5.addGeometry(Part.LineSegment(App.Vector(-14, -38.02241, 0), App.Vector(-34, -38.02241, 0)), False)
sketch5.addGeometry(Part.LineSegment(App.Vector(-34, -38.02241, 0), App.Vector(-34, -32.02241, 0)), False)
sketch5.addGeometry(Part.LineSegment(App.Vector(-34, -32.02241, 0), App.Vector(-14, -32.02241, 0)), False)
sketch5.addGeometry(Part.LineSegment(App.Vector(34, -32.02241, 0), App.Vector(34, -38.02241, 0)), False)
sketch5.addGeometry(Part.LineSegment(App.Vector(34, -38.02241, 0), App.Vector(14, -38.02241, 0)), False)
sketch5.addGeometry(Part.LineSegment(App.Vector(14, -38.02241, 0), App.Vector(14, -32.02241, 0)), False)
sketch5.addGeometry(Part.LineSegment(App.Vector(14, -32.02241, 0), App.Vector(34, -32.02241, 0)), False)
sketch5.addGeometry(Part.LineSegment(App.Vector(119, -32.02241, 0), App.Vector(119, -38.02241, 0)), False)
sketch5.addGeometry(Part.LineSegment(App.Vector(119, -38.02241, 0), App.Vector(109, -38.02241, 0)), False)
sketch5.addGeometry(Part.LineSegment(App.Vector(109, -38.02241, 0), App.Vector(109, -32.02241, 0)), False)
sketch5.addGeometry(Part.LineSegment(App.Vector(109, -32.02241, 0), App.Vector(119, -32.02241, 0)), False)
sketch5.addConstraint(Sketcher.Constraint("Coincident", 0, 2, 1, 1))
sketch5.addConstraint(Sketcher.Constraint("Coincident", 1, 2, 2, 1))
sketch5.addConstraint(Sketcher.Constraint("Coincident", 2, 2, 3, 1))
sketch5.addConstraint(Sketcher.Constraint("Coincident", 3, 2, 0, 1))
sketch5.addConstraint(Sketcher.Constraint("Coincident", 4, 2, 5, 1))
sketch5.addConstraint(Sketcher.Constraint("Coincident", 5, 2, 6, 1))
sketch5.addConstraint(Sketcher.Constraint("Coincident", 6, 2, 7, 1))
sketch5.addConstraint(Sketcher.Constraint("Coincident", 7, 2, 4, 1))
sketch5.addConstraint(Sketcher.Constraint("Coincident", 8, 2, 9, 1))
sketch5.addConstraint(Sketcher.Constraint("Coincident", 9, 2, 10, 1))
sketch5.addConstraint(Sketcher.Constraint("Coincident", 10, 2, 11, 1))
sketch5.addConstraint(Sketcher.Constraint("Coincident", 11, 2, 8, 1))
sketch5.addConstraint(Sketcher.Constraint("Coincident", 12, 2, 13, 1))
sketch5.addConstraint(Sketcher.Constraint("Coincident", 13, 2, 14, 1))
sketch5.addConstraint(Sketcher.Constraint("Coincident", 14, 2, 15, 1))
sketch5.addConstraint(Sketcher.Constraint("Coincident", 15, 2, 12, 1))
sketch5.addConstraint(Sketcher.Constraint("Vertical", 0))
sketch5.addConstraint(Sketcher.Constraint("Horizontal", 1))
sketch5.addConstraint(Sketcher.Constraint("Vertical", 2))
sketch5.addConstraint(Sketcher.Constraint("Horizontal", 3))
sketch5.addConstraint(Sketcher.Constraint("Vertical", 4))
sketch5.addConstraint(Sketcher.Constraint("Horizontal", 5))
sketch5.addConstraint(Sketcher.Constraint("Vertical", 6))
sketch5.addConstraint(Sketcher.Constraint("Horizontal", 7))
sketch5.addConstraint(Sketcher.Constraint("Vertical", 8))
sketch5.addConstraint(Sketcher.Constraint("Horizontal", 9))
sketch5.addConstraint(Sketcher.Constraint("Vertical", 10))
sketch5.addConstraint(Sketcher.Constraint("Horizontal", 11))
sketch5.addConstraint(Sketcher.Constraint("Vertical", 12))
sketch5.addConstraint(Sketcher.Constraint("Horizontal", 13))
sketch5.addConstraint(Sketcher.Constraint("Vertical", 14))
sketch5.addConstraint(Sketcher.Constraint("Horizontal", 15))
sketch5.addConstraint(Sketcher.Constraint("Symmetric", 5, 2, 8, 2, -2))
sketch5.addConstraint(Sketcher.Constraint("Symmetric", 7, 2, 10, 2, -2))
sketch5.addConstraint(Sketcher.Constraint("Symmetric", 1, 2, 12, 2, -2))
sketch5.addConstraint(Sketcher.Constraint("Symmetric", 3, 2, 14, 2, -2))
sketch5.addConstraint(Sketcher.Constraint("Horizontal", 1, 2, 4, 2))
sketch5.addConstraint(Sketcher.Constraint("Horizontal", 3, 2, 6, 2))
sketch5.addConstraint(Sketcher.Constraint("DistanceX", 1, 2, 1, 1, Q("10 mm")))
sketch5.addConstraint(Sketcher.Constraint("DistanceX", 5, 2, 5, 1, Q("20 mm")))
sketch5.addConstraint(Sketcher.Constraint("DistanceY", 0, 2, 0, 1, Q("6 mm")))
sketch5.addConstraint(Sketcher.Constraint("DistanceX", 0, 2, -1, 1, Q("109 mm")))
sketch5.addConstraint(Sketcher.Constraint("DistanceX", 4, 2, -1, 1, Q("14 mm")))
sketch5.addConstraint(Sketcher.Constraint("DistanceY", 0, 2, -1, 1, Q("38.02241 mm")))
pocket4 = doc.addObject("PartDesign::Pocket", "Pocket003")
body.addObject(pocket4)
pocket4.Profile = sketch5
pocket4.Length = 6
pocket4.Reversed = True

# Sketch on XY plane
sketch6 = doc.addObject("Sketcher::SketchObject", "Sketch005")
body.addObject(sketch6)
sketch6.AttachmentSupport = (doc.XY_Plane, [""])
sketch6.MapMode = "FlatFace"
sketch6.addGeometry(Part.Circle(App.Vector(140, 3.47759, 0), App.Vector(0, 0, 1), 1.65), False)
sketch6.addGeometry(Part.Circle(App.Vector(140, 53.47759, 0), App.Vector(0, 0, 1), 1.65), False)
sketch6.addGeometry(Part.Circle(App.Vector(-140, 53.47759, 0), App.Vector(0, 0, 1), 1.65), False)
sketch6.addGeometry(Part.Circle(App.Vector(-140, 3.47759, 0), App.Vector(0, 0, 1), 1.65), False)
sketch6.addGeometry(Part.Circle(App.Vector(39, -35.02241, 0), App.Vector(0, 0, 1), 1.5), False)
sketch6.addGeometry(Part.Circle(App.Vector(-9, -35.02241, 0), App.Vector(0, 0, 1), 1.5), False)
sketch6.addGeometry(Part.Circle(App.Vector(-39, -35.02241, 0), App.Vector(0, 0, 1), 1.5), False)
sketch6.addGeometry(Part.Circle(App.Vector(9, -35.02241, 0), App.Vector(0, 0, 1), 1.5), False)
sketch6.addGeometry(Part.Circle(App.Vector(78.5, 49.47759, 0), App.Vector(0, 0, 1), 2), False)
sketch6.addGeometry(Part.Circle(App.Vector(78.5, 7.47759, 0), App.Vector(0, 0, 1), 2), False)
sketch6.addGeometry(Part.Circle(App.Vector(60, 47.97759, 0), App.Vector(0, 0, 1), 2), False)
sketch6.addGeometry(Part.Circle(App.Vector(60, 8.977895, 0), App.Vector(0, 0, 1), 2), False)
sketch6.addGeometry(Part.Circle(App.Vector(-60, 8.977895, 0), App.Vector(0, 0, 1), 2), False)
sketch6.addGeometry(Part.Circle(App.Vector(-60, 47.97759, 0), App.Vector(0, 0, 1), 2), False)
sketch6.addGeometry(Part.Circle(App.Vector(50, 45.97759, 0), App.Vector(0, 0, 1), 2), False)
sketch6.addGeometry(Part.Circle(App.Vector(-50, 45.97759, 0), App.Vector(0, 0, 1), 2), False)
sketch6.addGeometry(Part.Circle(App.Vector(-50, 10.97759, 0), App.Vector(0, 0, 1), 2), False)
sketch6.addGeometry(Part.Circle(App.Vector(50, 10.97759, 0), App.Vector(0, 0, 1), 2), False)
sketch6.addGeometry(Part.Circle(App.Vector(-78.5, 7.47759, 0), App.Vector(0, 0, 1), 2), False)
sketch6.addGeometry(Part.Circle(App.Vector(-78.5, 49.47759, 0), App.Vector(0, 0, 1), 2), False)
sketch6.addGeometry(Part.Circle(App.Vector(-104.5, -27.22241, 0), App.Vector(0, 0, 1), 1.5), False)
sketch6.addGeometry(Part.Circle(App.Vector(-104.5, -50.22241, 0), App.Vector(0, 0, 1), 1.5), False)
sketch6.addGeometry(Part.Circle(App.Vector(104.5, -50.22241, 0), App.Vector(0, 0, 1), 1.5), False)
sketch6.addGeometry(Part.Circle(App.Vector(104.5, -27.22241, 0), App.Vector(0, 0, 1), 1.5), False)
sketch6.addConstraint(Sketcher.Constraint("Equal", 0, 1))
sketch6.addConstraint(Sketcher.Constraint("Equal", 1, 2))
sketch6.addConstraint(Sketcher.Constraint("Equal", 2, 3))
sketch6.addConstraint(Sketcher.Constraint("Equal", 4, 5))
sketch6.addConstraint(Sketcher.Constraint("Equal", 5, 6))
sketch6.addConstraint(Sketcher.Constraint("Equal", 6, 7))
sketch6.addConstraint(Sketcher.Constraint("Equal", 8, 9))
sketch6.addConstraint(Sketcher.Constraint("Equal", 9, 10))
sketch6.addConstraint(Sketcher.Constraint("Equal", 10, 11))
sketch6.addConstraint(Sketcher.Constraint("Equal", 11, 12))
sketch6.addConstraint(Sketcher.Constraint("Equal", 12, 13))
sketch6.addConstraint(Sketcher.Constraint("Equal", 13, 14))
sketch6.addConstraint(Sketcher.Constraint("Equal", 14, 15))
sketch6.addConstraint(Sketcher.Constraint("Equal", 15, 16))
sketch6.addConstraint(Sketcher.Constraint("Equal", 16, 17))
sketch6.addConstraint(Sketcher.Constraint("Equal", 17, 18))
sketch6.addConstraint(Sketcher.Constraint("Equal", 18, 19))
sketch6.addConstraint(Sketcher.Constraint("Equal", 7, 20))
sketch6.addConstraint(Sketcher.Constraint("Equal", 20, 21))
sketch6.addConstraint(Sketcher.Constraint("Equal", 21, 22))
sketch6.addConstraint(Sketcher.Constraint("Equal", 22, 23))
sketch6.addConstraint(Sketcher.Constraint("Symmetric", 1, 3, 2, 3, -2))
sketch6.addConstraint(Sketcher.Constraint("Symmetric", 0, 3, 3, 3, -2))
sketch6.addConstraint(Sketcher.Constraint("Symmetric", 4, 3, 6, 3, -2))
sketch6.addConstraint(Sketcher.Constraint("Symmetric", 5, 3, 7, 3, -2))
sketch6.addConstraint(Sketcher.Constraint("Symmetric", 11, 3, 12, 3, -2))
sketch6.addConstraint(Sketcher.Constraint("Symmetric", 10, 3, 13, 3, -2))
sketch6.addConstraint(Sketcher.Constraint("Symmetric", 14, 3, 15, 3, -2))
sketch6.addConstraint(Sketcher.Constraint("Symmetric", 16, 3, 17, 3, -2))
sketch6.addConstraint(Sketcher.Constraint("Symmetric", 9, 3, 18, 3, -2))
sketch6.addConstraint(Sketcher.Constraint("Symmetric", 8, 3, 19, 3, -2))
sketch6.addConstraint(Sketcher.Constraint("Symmetric", 21, 3, 22, 3, -2))
sketch6.addConstraint(Sketcher.Constraint("Symmetric", 20, 3, 23, 3, -2))
sketch6.addConstraint(Sketcher.Constraint("Horizontal", 4, 3, 5, 3))
sketch6.addConstraint(Sketcher.Constraint("Vertical", 0, 3, 1, 3))
sketch6.addConstraint(Sketcher.Constraint("Vertical", 8, 3, 9, 3))
sketch6.addConstraint(Sketcher.Constraint("Vertical", 10, 3, 11, 3))
sketch6.addConstraint(Sketcher.Constraint("Vertical", 15, 3, 16, 3))
sketch6.addConstraint(Sketcher.Constraint("Vertical", 20, 3, 21, 3))
sketch6.addConstraint(Sketcher.Constraint("Diameter", 4, Q("3 mm")))
sketch6.addConstraint(Sketcher.Constraint("Diameter", 8, Q("4 mm")))
sketch6.addConstraint(Sketcher.Constraint("Diameter", 0, Q("3.3 mm")))
sketch6.addConstraint(Sketcher.Constraint("DistanceX", -1, 1, 0, 3, Q("140 mm")))
sketch6.addConstraint(Sketcher.Constraint("DistanceX", -1, 1, 4, 3, Q("39 mm")))
sketch6.addConstraint(Sketcher.Constraint("DistanceX", 5, 3, -1, 1, Q("9 mm")))
sketch6.addConstraint(Sketcher.Constraint("DistanceX", -1, 1, 10, 3, Q("60 mm")))
sketch6.addConstraint(Sketcher.Constraint("DistanceX", -1, 1, 14, 3, Q("50 mm")))
sketch6.addConstraint(Sketcher.Constraint("DistanceY", 0, 3, 1, 3, Q("50 mm")))
sketch6.addConstraint(Sketcher.Constraint("DistanceY", 8, 3, 1, 3, Q("4 mm")))
sketch6.addConstraint(Sketcher.Constraint("DistanceY", 9, 3, 8, 3, Q("42 mm")))
sketch6.addConstraint(Sketcher.Constraint("DistanceY", 4, 3, 10, 3, Q("83 mm")))
sketch6.addConstraint(Sketcher.Constraint("DistanceY", 14, 3, 10, 3, Q("2 mm")))
sketch6.addConstraint(Sketcher.Constraint("DistanceY", 16, 3, 15, 3, Q("35 mm")))
sketch6.addConstraint(Sketcher.Constraint("DistanceX", 20, 3, 18, 3, Q("26 mm")))
sketch6.addConstraint(Sketcher.Constraint("DistanceY", 21, 3, 20, 3, Q("23 mm")))
sketch6.addConstraint(Sketcher.Constraint("DistanceX", -1, 1, 8, 3, Q("78.5 mm")))
sketch6.addConstraint(Sketcher.Constraint("DistanceY", 4, 3, 0, 3, Q("38.5 mm")))
sketch6.addConstraint(Sketcher.Constraint("DistanceY", 20, 3, 18, 3, Q("34.7 mm")))
sketch6.addConstraint(Sketcher.Constraint("DistanceY", -1, 1, 0, 3, Q("3.47759 mm")))
sketch6.addConstraint(Sketcher.Constraint("DistanceY", -1, 1, 11, 3, Q("8.977895 mm")))
pocket5 = doc.addObject("PartDesign::Pocket", "Pocket004")
body.addObject(pocket5)
pocket5.Profile = sketch6
pocket5.Length = 6
pocket5.Reversed = True

doc.recompute()
